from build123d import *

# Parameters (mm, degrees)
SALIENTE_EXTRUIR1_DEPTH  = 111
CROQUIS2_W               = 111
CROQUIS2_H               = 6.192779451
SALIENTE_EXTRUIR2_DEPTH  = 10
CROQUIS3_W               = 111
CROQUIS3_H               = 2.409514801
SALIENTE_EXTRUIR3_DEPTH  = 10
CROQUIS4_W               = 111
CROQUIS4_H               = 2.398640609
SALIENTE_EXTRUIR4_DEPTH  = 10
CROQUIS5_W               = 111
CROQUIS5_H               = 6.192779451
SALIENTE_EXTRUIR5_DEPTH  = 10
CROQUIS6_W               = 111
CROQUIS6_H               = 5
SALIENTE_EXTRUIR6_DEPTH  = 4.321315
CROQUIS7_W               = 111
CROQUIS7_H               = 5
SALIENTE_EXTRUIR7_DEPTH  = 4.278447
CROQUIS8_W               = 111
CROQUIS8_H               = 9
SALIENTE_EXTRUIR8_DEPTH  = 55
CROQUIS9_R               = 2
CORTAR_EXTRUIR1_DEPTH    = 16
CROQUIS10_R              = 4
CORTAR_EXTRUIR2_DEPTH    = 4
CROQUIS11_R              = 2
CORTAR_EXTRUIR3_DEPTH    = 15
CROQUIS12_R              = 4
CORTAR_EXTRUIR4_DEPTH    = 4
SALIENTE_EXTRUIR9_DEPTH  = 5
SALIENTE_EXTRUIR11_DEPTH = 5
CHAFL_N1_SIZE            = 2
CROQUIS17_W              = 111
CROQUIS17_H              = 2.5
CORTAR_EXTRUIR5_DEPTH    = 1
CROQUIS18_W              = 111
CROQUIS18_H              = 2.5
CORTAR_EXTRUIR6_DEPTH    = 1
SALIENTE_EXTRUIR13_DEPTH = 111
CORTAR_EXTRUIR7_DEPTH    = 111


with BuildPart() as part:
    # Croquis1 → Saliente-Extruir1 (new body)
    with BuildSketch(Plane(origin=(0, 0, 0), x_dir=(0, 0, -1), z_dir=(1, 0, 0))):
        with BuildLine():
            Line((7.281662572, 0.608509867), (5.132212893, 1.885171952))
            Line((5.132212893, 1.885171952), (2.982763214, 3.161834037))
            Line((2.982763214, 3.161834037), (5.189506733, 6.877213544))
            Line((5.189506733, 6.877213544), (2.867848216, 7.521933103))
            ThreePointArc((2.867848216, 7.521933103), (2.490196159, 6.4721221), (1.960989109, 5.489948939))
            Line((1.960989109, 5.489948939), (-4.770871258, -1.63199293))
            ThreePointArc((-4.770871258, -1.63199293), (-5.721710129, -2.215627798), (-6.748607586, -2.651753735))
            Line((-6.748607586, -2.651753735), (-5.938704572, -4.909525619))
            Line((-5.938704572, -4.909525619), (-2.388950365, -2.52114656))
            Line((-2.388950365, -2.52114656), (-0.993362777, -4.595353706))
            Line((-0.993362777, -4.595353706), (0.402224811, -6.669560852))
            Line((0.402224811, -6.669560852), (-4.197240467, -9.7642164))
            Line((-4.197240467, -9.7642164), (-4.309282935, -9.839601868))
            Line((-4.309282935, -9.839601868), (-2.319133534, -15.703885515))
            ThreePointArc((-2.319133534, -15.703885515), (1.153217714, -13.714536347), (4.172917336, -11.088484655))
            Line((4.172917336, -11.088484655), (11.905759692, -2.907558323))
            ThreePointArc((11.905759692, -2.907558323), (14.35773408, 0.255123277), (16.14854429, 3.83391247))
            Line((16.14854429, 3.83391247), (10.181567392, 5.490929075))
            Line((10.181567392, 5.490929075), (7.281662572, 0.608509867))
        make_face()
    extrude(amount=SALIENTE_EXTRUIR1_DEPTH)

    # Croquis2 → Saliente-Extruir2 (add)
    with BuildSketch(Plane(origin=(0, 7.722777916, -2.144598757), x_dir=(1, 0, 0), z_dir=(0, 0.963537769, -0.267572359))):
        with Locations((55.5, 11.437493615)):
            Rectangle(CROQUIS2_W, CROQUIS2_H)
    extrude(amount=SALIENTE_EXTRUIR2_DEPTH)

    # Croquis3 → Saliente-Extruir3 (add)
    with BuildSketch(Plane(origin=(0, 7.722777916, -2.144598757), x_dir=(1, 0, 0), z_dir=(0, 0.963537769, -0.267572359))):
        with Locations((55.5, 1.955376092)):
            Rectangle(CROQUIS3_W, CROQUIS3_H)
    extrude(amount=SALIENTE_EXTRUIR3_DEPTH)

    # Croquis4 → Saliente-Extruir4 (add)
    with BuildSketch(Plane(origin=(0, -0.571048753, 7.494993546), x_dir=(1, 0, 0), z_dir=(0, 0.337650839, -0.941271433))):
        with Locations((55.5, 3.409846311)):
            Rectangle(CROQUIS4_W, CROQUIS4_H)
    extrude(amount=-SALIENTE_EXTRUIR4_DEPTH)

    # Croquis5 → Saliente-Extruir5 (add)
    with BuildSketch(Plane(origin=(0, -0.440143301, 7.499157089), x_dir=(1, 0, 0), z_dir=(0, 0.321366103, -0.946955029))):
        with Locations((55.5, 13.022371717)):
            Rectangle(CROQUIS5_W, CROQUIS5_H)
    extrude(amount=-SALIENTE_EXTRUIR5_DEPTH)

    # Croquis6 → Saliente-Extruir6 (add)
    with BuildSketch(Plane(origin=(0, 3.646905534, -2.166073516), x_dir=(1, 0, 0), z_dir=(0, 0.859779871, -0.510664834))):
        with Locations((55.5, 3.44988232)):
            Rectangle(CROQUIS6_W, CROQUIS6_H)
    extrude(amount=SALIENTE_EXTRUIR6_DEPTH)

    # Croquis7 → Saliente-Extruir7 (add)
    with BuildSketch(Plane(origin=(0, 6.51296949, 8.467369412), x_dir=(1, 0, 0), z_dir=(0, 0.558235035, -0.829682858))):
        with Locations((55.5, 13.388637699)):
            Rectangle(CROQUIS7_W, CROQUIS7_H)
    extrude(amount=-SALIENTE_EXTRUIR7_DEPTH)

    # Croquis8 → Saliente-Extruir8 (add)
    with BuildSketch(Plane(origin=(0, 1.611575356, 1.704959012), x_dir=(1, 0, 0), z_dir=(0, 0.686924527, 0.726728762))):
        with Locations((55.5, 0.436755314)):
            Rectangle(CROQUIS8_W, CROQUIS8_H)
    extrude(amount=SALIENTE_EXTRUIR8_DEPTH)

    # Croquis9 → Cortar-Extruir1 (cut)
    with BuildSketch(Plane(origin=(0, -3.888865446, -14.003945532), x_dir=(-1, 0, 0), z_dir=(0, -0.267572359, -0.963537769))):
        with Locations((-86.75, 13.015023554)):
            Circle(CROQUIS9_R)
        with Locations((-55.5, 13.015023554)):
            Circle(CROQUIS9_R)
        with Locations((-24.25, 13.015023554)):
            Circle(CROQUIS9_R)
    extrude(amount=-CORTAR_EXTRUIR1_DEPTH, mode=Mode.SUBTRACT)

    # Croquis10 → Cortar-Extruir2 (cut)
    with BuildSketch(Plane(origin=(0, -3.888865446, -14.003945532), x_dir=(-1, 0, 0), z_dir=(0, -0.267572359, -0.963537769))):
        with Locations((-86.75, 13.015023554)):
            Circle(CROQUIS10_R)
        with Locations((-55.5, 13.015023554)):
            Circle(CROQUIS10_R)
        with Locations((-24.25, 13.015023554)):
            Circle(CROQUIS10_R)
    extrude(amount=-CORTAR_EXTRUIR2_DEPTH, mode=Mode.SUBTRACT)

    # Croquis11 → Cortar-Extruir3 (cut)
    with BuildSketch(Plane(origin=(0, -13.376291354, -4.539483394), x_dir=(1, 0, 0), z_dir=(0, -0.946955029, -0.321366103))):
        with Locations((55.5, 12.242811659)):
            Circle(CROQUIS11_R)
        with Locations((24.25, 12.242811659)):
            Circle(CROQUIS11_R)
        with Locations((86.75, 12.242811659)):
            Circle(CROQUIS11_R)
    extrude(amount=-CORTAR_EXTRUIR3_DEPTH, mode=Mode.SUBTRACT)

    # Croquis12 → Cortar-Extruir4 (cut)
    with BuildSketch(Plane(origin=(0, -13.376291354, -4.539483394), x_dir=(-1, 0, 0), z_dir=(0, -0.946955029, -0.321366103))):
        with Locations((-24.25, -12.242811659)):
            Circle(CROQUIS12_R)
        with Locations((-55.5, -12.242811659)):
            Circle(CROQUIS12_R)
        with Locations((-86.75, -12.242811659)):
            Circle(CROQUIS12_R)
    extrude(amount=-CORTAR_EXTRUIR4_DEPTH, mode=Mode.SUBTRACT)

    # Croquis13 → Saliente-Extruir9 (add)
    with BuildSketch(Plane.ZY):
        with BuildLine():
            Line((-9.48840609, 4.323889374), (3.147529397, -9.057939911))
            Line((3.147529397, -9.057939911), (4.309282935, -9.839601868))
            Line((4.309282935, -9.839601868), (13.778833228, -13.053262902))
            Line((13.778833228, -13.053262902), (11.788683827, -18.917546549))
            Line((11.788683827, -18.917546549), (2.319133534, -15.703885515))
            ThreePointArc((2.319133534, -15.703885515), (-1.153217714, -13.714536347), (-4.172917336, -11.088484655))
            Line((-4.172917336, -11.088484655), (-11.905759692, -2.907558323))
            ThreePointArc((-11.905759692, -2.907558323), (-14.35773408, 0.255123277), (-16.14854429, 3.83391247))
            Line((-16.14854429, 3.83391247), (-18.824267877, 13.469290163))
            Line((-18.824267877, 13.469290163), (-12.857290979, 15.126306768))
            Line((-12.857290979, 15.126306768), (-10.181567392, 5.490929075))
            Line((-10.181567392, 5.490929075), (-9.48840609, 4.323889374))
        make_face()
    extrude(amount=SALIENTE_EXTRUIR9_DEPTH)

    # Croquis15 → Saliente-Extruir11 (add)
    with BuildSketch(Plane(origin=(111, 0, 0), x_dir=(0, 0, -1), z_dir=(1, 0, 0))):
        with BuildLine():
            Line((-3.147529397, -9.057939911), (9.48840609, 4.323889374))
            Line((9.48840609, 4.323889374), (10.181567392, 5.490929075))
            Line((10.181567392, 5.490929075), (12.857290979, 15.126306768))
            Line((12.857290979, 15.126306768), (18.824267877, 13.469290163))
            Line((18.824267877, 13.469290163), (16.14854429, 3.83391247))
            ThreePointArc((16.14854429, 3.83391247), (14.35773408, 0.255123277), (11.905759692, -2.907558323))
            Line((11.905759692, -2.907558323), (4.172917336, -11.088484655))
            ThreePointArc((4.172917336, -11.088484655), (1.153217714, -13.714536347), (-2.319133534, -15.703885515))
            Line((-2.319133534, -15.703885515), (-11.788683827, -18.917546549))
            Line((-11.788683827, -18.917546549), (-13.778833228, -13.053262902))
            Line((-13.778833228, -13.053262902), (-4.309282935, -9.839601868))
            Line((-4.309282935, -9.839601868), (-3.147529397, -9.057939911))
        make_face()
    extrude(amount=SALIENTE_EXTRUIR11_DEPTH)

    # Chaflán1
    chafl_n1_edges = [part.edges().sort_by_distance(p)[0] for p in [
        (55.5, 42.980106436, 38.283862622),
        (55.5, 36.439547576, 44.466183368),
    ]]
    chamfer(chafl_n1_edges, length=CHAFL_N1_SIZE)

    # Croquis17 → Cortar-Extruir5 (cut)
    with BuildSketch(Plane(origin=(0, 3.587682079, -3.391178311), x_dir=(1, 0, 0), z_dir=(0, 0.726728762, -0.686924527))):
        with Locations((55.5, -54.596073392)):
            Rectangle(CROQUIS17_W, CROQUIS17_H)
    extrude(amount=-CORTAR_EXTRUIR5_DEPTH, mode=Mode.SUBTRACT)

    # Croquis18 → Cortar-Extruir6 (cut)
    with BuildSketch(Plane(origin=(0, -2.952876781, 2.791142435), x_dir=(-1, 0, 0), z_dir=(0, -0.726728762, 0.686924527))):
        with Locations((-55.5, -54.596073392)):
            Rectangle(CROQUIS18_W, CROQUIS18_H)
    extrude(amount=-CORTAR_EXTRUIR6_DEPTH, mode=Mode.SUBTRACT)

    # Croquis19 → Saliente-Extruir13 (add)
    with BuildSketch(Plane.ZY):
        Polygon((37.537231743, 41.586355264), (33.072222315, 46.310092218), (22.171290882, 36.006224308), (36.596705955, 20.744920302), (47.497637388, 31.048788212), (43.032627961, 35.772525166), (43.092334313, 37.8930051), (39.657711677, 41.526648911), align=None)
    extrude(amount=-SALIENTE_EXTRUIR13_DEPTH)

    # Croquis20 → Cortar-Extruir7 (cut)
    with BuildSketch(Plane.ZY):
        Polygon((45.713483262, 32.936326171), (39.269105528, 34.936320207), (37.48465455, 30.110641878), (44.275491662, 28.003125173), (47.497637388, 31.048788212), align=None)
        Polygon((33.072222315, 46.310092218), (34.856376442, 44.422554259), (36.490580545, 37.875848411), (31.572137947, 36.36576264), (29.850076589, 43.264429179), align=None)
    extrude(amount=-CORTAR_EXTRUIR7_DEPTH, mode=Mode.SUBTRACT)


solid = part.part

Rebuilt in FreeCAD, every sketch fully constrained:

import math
import FreeCAD as App
import Part
import Sketcher

V = App.Vector
Q = App.Units.Quantity


def edges_at(feature, points):
    """Names of the edges that pass closest to the given points."""
    edges = feature.Shape.Edges
    near = lambda p: min(range(len(edges)), key=lambda i: edges[i].distToShape(Part.Vertex(*p))[0])
    return sorted({f"Edge{near(p) + 1}" for p in points})

doc = App.newDocument("Part")
params = doc.addObject("Spreadsheet::Sheet", "Params")
for row, (alias, value) in enumerate([
    ("sketch1_radius", "7.5 mm"),
    ("sketch1_radius2", "20.5 mm"),
    ("sketch1_length", "5 mm"),
    ("sketch1_length2", "9.8 mm"),
    ("pad1_length", "111 mm"),
    ("sketch2_width", "111 mm"),
    ("pad2_length", "10 mm"),
    ("sketch3_width", "111 mm"),
    ("pad3_length", "10 mm"),
    ("sketch4_width", "111 mm"),
    ("pad4_length", "10 mm"),
    ("sketch5_width", "111 mm"),
    ("pad5_length", "10 mm"),
    ("sketch6_width", "111 mm"),
    ("sketch6_height", "5 mm"),
    ("pad6_length", "4.321315 mm"),
    ("sketch7_width", "111 mm"),
    ("sketch7_height", "5 mm"),
    ("pad7_length", "4.278447 mm"),
    ("sketch8_width", "111 mm"),
    ("sketch8_height", "9 mm"),
    ("pad8_length", "55 mm"),
    ("sketch9_diameter", "4 mm"),
    ("pocket1_length", "16 mm"),
    ("sketch10_diameter", "8 mm"),
    ("pocket2_length", "4 mm"),
    ("sketch11_diameter", "4 mm"),
    ("pocket3_length", "15 mm"),
    ("sketch12_diameter", "8 mm"),
    ("pocket4_length", "4 mm"),
    ("sketch13_radius", "20.5 mm"),
    ("sketch13_length", "10 mm"),
    ("pad9_length", "5 mm"),
    ("sketch14_radius", "20.5 mm"),
    ("sketch14_length", "10 mm"),
    ("pad10_length", "5 mm"),
    ("chamfer_size", "2 mm"),
    ("sketch15_width", "111 mm"),
    ("sketch15_height", "2.5 mm"),
    ("pocket5_length", "1 mm"),
    ("sketch16_width", "111 mm"),
    ("sketch16_height", "2.5 mm"),
    ("pocket6_length", "1 mm"),
    ("sketch17_length", "15 mm"),
    ("sketch17_length2", "21 mm"),
    ("sketch17_length3", "5 mm"),
    ("sketch17_length4", "6.5 mm"),
    ("pad11_length", "111 mm"),
    ("pocket7_length", "111 mm"),
], start=1):
    params.set(f"A{row}", alias)
    params.set(f"B{row}", "=" + value)
    params.setAlias(f"B{row}", alias)

body = doc.addObject("PartDesign::Body", "Body")

sketch1 = body.newObject("Sketcher::SketchObject", "Sketch")
sketch1.AttachmentSupport = (doc.getObject("YZ_Plane"), [""])
sketch1.MapMode = "FlatFace"
sketch1.addGeometry([
    Part.LineSegment(V(0.60851, -7.281663, 0), V(3.161834, -2.982763, 0)),
    Part.LineSegment(V(3.161834, -2.982763, 0), V(6.877214, -5.189507, 0)),
    Part.LineSegment(V(6.877214, -5.189507, 0), V(7.521933, -2.867848, 0)),
    Part.ArcOfCircle(Part.Circle(V(9.528726, 4.358685, 0), V(0, 0, 1), 7.5), math.radians(-122.581829), math.radians(-105.519859)),
    Part.LineSegment(V(5.489949, -1.960989, 0), V(-1.631993, 4.770871, 0)),
    Part.ArcOfCircle(Part.Circle(V(4.450409, 9.158853, 0), V(0, 0, 1), 7.5), math.radians(-161.254439), math.radians(-144.192469)),
    Part.LineSegment(V(-2.651754, 6.748608, 0), V(-4.909526, 5.938705, 0)),
    Part.LineSegment(V(-4.909526, 5.938705, 0), V(-2.521147, 2.38895, 0)),
    Part.LineSegment(V(-2.521147, 2.38895, 0), V(-6.669561, -0.402225, 0)),
    Part.LineSegment(V(-6.669561, -0.402225, 0), V(-9.764216, 4.19724, 0)),
    Part.LineSegment(V(-9.764216, 4.19724, 0), V(-9.839602, 4.309283, 0)),
    Part.LineSegment(V(-9.839602, 4.309283, 0), V(-15.703886, 2.319134, 0)),
    Part.ArcOfCircle(Part.Circle(V(2.993468, 10.725022, 0), V(0, 0, 1), 20.5), math.radians(-155.792442), math.radians(-133.387149)),
    Part.LineSegment(V(-11.088485, -4.172917, 0), V(-2.907558, -11.90576, 0)),
    Part.ArcOfCircle(Part.Circle(V(11.174394, 2.99218, 0), V(0, 0, 1), 20.5), math.radians(-133.387149), math.radians(-110.981856)),
    Part.LineSegment(V(3.833912, -16.148544, 0), V(5.490929, -10.181567, 0)),
    Part.LineSegment(V(5.490929, -10.181567, 0), V(0.60851, -7.281663, 0)),
], False)
sketch1.addConstraint([
    Sketcher.Constraint("Coincident", 0, 2, 1, 1),
    Sketcher.Constraint("Coincident", 1, 2, 2, 1),
    Sketcher.Constraint("Coincident", 2, 2, 3, 2),
    Sketcher.Constraint("Coincident", 3, 1, 4, 1),
    Sketcher.Constraint("Coincident", 4, 2, 5, 2),
    Sketcher.Constraint("Coincident", 5, 1, 6, 1),
    Sketcher.Constraint("Coincident", 6, 2, 7, 1),
    Sketcher.Constraint("Coincident", 7, 2, 8, 1),
    Sketcher.Constraint("Coincident", 8, 2, 9, 1),
    Sketcher.Constraint("Coincident", 9, 2, 10, 1),
    Sketcher.Constraint("Coincident", 10, 2, 11, 1),
    Sketcher.Constraint("Coincident", 11, 2, 12, 1),
    Sketcher.Constraint("Tangent", 12, 2, 13, 1),
    Sketcher.Constraint("Tangent", 13, 2, 14, 1),
    Sketcher.Constraint("Coincident", 14, 2, 15, 1),
    Sketcher.Constraint("Coincident", 15, 2, 16, 1),
    Sketcher.Constraint("Coincident", 16, 2, 0, 1),
    Sketcher.Constraint("Equal", 3, 5),
    Sketcher.Constraint("Equal", 12, 14),
    Sketcher.Constraint("Perpendicular", 0, 1),
    Sketcher.Constraint("Perpendicular", 7, 8),
    Sketcher.Constraint("Perpendicular", 8, 9),
    Sketcher.Constraint("Parallel", 9, 10),
    Sketcher.Constraint("Parallel", 4, 13),
    Sketcher.Constraint("Parallel", 2, 15),
    Sketcher.Constraint("Parallel", 1, 16),
    Sketcher.Constraint("Equal", 0, 8),
    Sketcher.Constraint("Equal", 11, 15),
    Sketcher.Constraint("Radius", 3, Q("7.5 mm")),
    Sketcher.Constraint("Radius", 12, Q("20.5 mm")),
    Sketcher.Constraint("Distance", 0, Q("5 mm")),
    Sketcher.Constraint("Distance", 4, Q("9.8 mm")),
    Sketcher.Constraint("DistanceX", 10, 2, -1, 1, Q("9.839602 mm")),
    Sketcher.Constraint("DistanceX", 0, 2, 2, 2, Q("4.360099 mm")),
    Sketcher.Constraint("DistanceY", 2, 2, 5, 3, Q("12.026702 mm")),
    Sketcher.Constraint("DistanceX", 4, 2, 5, 3, Q("6.082402 mm")),
    Sketcher.Constraint("DistanceX", 11, 2, 12, 2, Q("4.615401 mm")),
    Sketcher.Constraint("DistanceY", 12, 2, 10, 2, Q("8.4822 mm")),
    Sketcher.Constraint("DistanceX", 14, 2, 1, 2, Q("3.043301 mm")),
    Sketcher.Constraint("DistanceY", 16, 2, 0, 2, Q("4.298899 mm")),
    Sketcher.Constraint("Distance", 6, Q("2.398641 mm")),
    Sketcher.Constraint("Distance", 11, Q("6.192779 mm")),
    Sketcher.Constraint("DistanceX", -1, 1, 5, 3, Q("4.450409 mm")),
    Sketcher.Constraint("DistanceX", -1, 1, 12, 3, Q("2.993468 mm")),
    Sketcher.Constraint("DistanceY", -1, 1, 14, 3, Q("2.99218 mm")),
    Sketcher.Constraint("DistanceY", 2, 2, -1, 1, Q("2.867848 mm")),
    Sketcher.Constraint("DistanceY", -1, 1, 7, 2, Q("2.38895 mm")),
    Sketcher.Constraint("DistanceX", 8, 2, -1, 1, Q("6.669561 mm")),
    Sketcher.Constraint("DistanceY", -1, 1, 9, 2, Q("4.19724 mm")),
    Sketcher.Constraint("DistanceX", 13, 2, -1, 1, Q("2.907558 mm")),
    Sketcher.Constraint("DistanceX", -1, 1, 15, 2, Q("5.490929 mm")),
    Sketcher.Constraint("DistanceX", -1, 1, 16, 2, Q("0.60851 mm")),
    Sketcher.Constraint("DistanceX", 5, 1, 4, 2, Q("1.019761 mm")),
])
sketch1.setExpression("Constraints[28]", "Params.sketch1_radius")
sketch1.setExpression("Constraints[29]", "Params.sketch1_radius2")
sketch1.setExpression("Constraints[30]", "Params.sketch1_length")
sketch1.setExpression("Constraints[31]", "Params.sketch1_length2")
pad1 = body.newObject("PartDesign::Pad", "Pad")
pad1.Profile = sketch1
pad1.setExpression("Length", "Params.pad1_length")

sketch2 = body.newObject("Sketcher::SketchObject", "Sketch001")
sketch2.Placement = App.Placement(V(0, 7.722778, -2.144599), App.Rotation(V(1, 0, 0), V(0, -0.267572359, -0.963537769), V(0, 0.963537769, -0.267572359), "ZXY"))
sketch2.addGeometry([
    Part.LineSegment(V(0, 14.533883, 0), V(0, 8.341104, 0)),
    Part.LineSegment(V(0, 8.341104, 0), V(111, 8.341104, 0)),
    Part.LineSegment(V(111, 8.341104, 0), V(111, 14.533883, 0)),
    Part.LineSegment(V(111, 14.533883, 0), V(0, 14.533883, 0)),
], False)
sketch2.addConstraint([
    Sketcher.Constraint("Coincident", 0, 2, 1, 1),
    Sketcher.Constraint("Coincident", 1, 2, 2, 1),
    Sketcher.Constraint("Coincident", 2, 2, 3, 1),
    Sketcher.Constraint("Coincident", 3, 2, 0, 1),
    Sketcher.Constraint("Vertical", 0),
    Sketcher.Constraint("Horizontal", 1),
    Sketcher.Constraint("Vertical", 2),
    Sketcher.Constraint("Horizontal", 3),
    Sketcher.Constraint("PointOnObject", 0, 2, -2),
    Sketcher.Constraint("DistanceX", 1, 1, 1, 2, Q("111 mm")),
    Sketcher.Constraint("DistanceY", 0, 2, 0, 1, Q("6.192779 mm")),
    Sketcher.Constraint("DistanceY", -1, 1, 0, 2, Q("8.341104 mm")),
])
sketch2.setExpression("Constraints[9]", "Params.sketch2_width")
pad2 = body.newObject("PartDesign::Pad", "Pad001")
pad2.Profile = sketch2
pad2.setExpression("Length", "Params.pad2_length")

sketch3 = body.newObject("Sketcher::SketchObject", "Sketch002")
sketch3.Placement = App.Placement(V(0, 7.722778, -2.144599), App.Rotation(V(1, 0, 0), V(0, -0.267572359, -0.963537769), V(0, 0.963537769, -0.267572359), "ZXY"))
sketch3.addGeometry([
    Part.LineSegment(V(0, 3.160133, 0), V(0, 0.750619, 0)),
    Part.LineSegment(V(0, 0.750619, 0), V(111, 0.750619, 0)),
    Part.LineSegment(V(111, 0.750619, 0), V(111, 3.160133, 0)),
    Part.LineSegment(V(111, 3.160133, 0), V(0, 3.160133, 0)),
], False)
sketch3.addConstraint([
    Sketcher.Constraint("Coincident", 0, 2, 1, 1),
    Sketcher.Constraint("Coincident", 1, 2, 2, 1),
    Sketcher.Constraint("Coincident", 2, 2, 3, 1),
    Sketcher.Constraint("Coincident", 3, 2, 0, 1),
    Sketcher.Constraint("Vertical", 0),
    Sketcher.Constraint("Horizontal", 1),
    Sketcher.Constraint("Vertical", 2),
    Sketcher.Constraint("Horizontal", 3),
    Sketcher.Constraint("PointOnObject", 0, 2, -2),
    Sketcher.Constraint("DistanceX", 1, 1, 1, 2, Q("111 mm")),
    Sketcher.Constraint("DistanceY", 0, 2, 0, 1, Q("2.409515 mm")),
    Sketcher.Constraint("DistanceY", -1, 1, 0, 2, Q("0.750619 mm")),
])
sketch3.setExpression("Constraints[9]", "Params.sketch3_width")
pad3 = body.newObject("PartDesign::Pad", "Pad002")
pad3.Profile = sketch3
pad3.setExpression("Length", "Params.pad3_length")

sketch4 = body.newObject("Sketcher::SketchObject", "Sketch003")
sketch4.Placement = App.Placement(V(0, -0.571049, 7.494994), App.Rotation(V(1, 0, 0), V(0, -0.941271433, -0.337650839), V(0, 0.337650839, -0.941271433), "ZXY"))
sketch4.addGeometry([
    Part.LineSegment(V(0, 4.609167, 0), V(0, 2.210526, 0)),
    Part.LineSegment(V(0, 2.210526, 0), V(111, 2.210526, 0)),
    Part.LineSegment(V(111, 2.210526, 0), V(111, 4.609167, 0)),
    Part.LineSegment(V(111, 4.609167, 0), V(0, 4.609167, 0)),
], False)
sketch4.addConstraint([
    Sketcher.Constraint("Coincident", 0, 2, 1, 1),
    Sketcher.Constraint("Coincident", 1, 2, 2, 1),
    Sketcher.Constraint("Coincident", 2, 2, 3, 1),
    Sketcher.Constraint("Coincident", 3, 2, 0, 1),
    Sketcher.Constraint("Vertical", 0),
    Sketcher.Constraint("Horizontal", 1),
    Sketcher.Constraint("Vertical", 2),
    Sketcher.Constraint("Horizontal", 3),
    Sketcher.Constraint("PointOnObject", 0, 2, -2),
    Sketcher.Constraint("DistanceX", 1, 1, 1, 2, Q("111 mm")),
    Sketcher.Constraint("DistanceY", 0, 2, 0, 1, Q("2.398641 mm")),
    Sketcher.Constraint("DistanceY", -1, 1, 0, 2, Q("2.210526 mm")),
])
sketch4.setExpression("Constraints[9]", "Params.sketch4_width")
pad4 = body.newObject("PartDesign::Pad", "Pad003")
pad4.Profile = sketch4
pad4.setExpression("Length", "Params.pad4_length")
pad4.Reversed = True

sketch5 = body.newObject("Sketcher::SketchObject", "Sketch004")
sketch5.Placement = App.Placement(V(0, -0.440143, 7.499157), App.Rotation(V(1, 0, 0), V(0, -0.946955029, -0.321366103), V(0, 0.321366103, -0.946955029), "ZXY"))
sketch5.addGeometry([
    Part.LineSegment(V(0, 16.118761, 0), V(0, 9.925982, 0)),
    Part.LineSegment(V(0, 9.925982, 0), V(111, 9.925982, 0)),
    Part.LineSegment(V(111, 9.925982, 0), V(111, 16.118761, 0)),
    Part.LineSegment(V(111, 16.118761, 0), V(0, 16.118761, 0)),
], False)
sketch5.addConstraint([
    Sketcher.Constraint("Coincident", 0, 2, 1, 1),
    Sketcher.Constraint("Coincident", 1, 2, 2, 1),
    Sketcher.Constraint("Coincident", 2, 2, 3, 1),
    Sketcher.Constraint("Coincident", 3, 2, 0, 1),
    Sketcher.Constraint("Vertical", 0),
    Sketcher.Constraint("Horizontal", 1),
    Sketcher.Constraint("Vertical", 2),
    Sketcher.Constraint("Horizontal", 3),
    Sketcher.Constraint("PointOnObject", 0, 2, -2),
    Sketcher.Constraint("DistanceX", 1, 1, 1, 2, Q("111 mm")),
    Sketcher.Constraint("DistanceY", 0, 2, 0, 1, Q("6.192779 mm")),
    Sketcher.Constraint("DistanceY", -1, 1, 0, 2, Q("9.925982 mm")),
])
sketch5.setExpression("Constraints[9]", "Params.sketch5_width")
pad5 = body.newObject("PartDesign::Pad", "Pad004")
pad5.Profile = sketch5
pad5.setExpression("Length", "Params.pad5_length")
pad5.Reversed = True

sketch6 = body.newObject("Sketcher::SketchObject", "Sketch005")
sketch6.Placement = App.Placement(V(0, 3.646906, -2.166074), App.Rotation(V(1, 0, 0), V(0, -0.510664834, -0.859779871), V(0, 0.859779871, -0.510664834), "ZXY"))
sketch6.addGeometry([
    Part.LineSegment(V(0, 5.949882, 0), V(0, 0.949882, 0)),
    Part.LineSegment(V(0, 0.949882, 0), V(111, 0.949882, 0)),
    Part.LineSegment(V(111, 0.949882, 0), V(111, 5.949882, 0)),
    Part.LineSegment(V(111, 5.949882, 0), V(0, 5.949882, 0)),
], False)
sketch6.addConstraint([
    Sketcher.Constraint("Coincident", 0, 2, 1, 1),
    Sketcher.Constraint("Coincident", 1, 2, 2, 1),
    Sketcher.Constraint("Coincident", 2, 2, 3, 1),
    Sketcher.Constraint("Coincident", 3, 2, 0, 1),
    Sketcher.Constraint("Vertical", 0),
    Sketcher.Constraint("Horizontal", 1),
    Sketcher.Constraint("Vertical", 2),
    Sketcher.Constraint("Horizontal", 3),
    Sketcher.Constraint("PointOnObject", 0, 2, -2),
    Sketcher.Constraint("DistanceX", 1, 1, 1, 2, Q("111 mm")),
    Sketcher.Constraint("DistanceY", 0, 2, 0, 1, Q("5 mm")),
    Sketcher.Constraint("DistanceY", -1, 1, 0, 2, Q("0.949882 mm")),
])
sketch6.setExpression("Constraints[9]", "Params.sketch6_width")
sketch6.setExpression("Constraints[10]", "Params.sketch6_height")
pad6 = body.newObject("PartDesign::Pad", "Pad005")
pad6.Profile = sketch6
pad6.setExpression("Length", "Params.pad6_length")

sketch7 = body.newObject("Sketcher::SketchObject", "Sketch006")
sketch7.Placement = App.Placement(V(0, 6.512969, 8.467369), App.Rotation(V(1, 0, 0), V(0, -0.829682858, -0.558235035), V(0, 0.558235035, -0.829682858), "ZXY"))
sketch7.addGeometry([
    Part.LineSegment(V(0, 15.888638, 0), V(0, 10.888638, 0)),
    Part.LineSegment(V(0, 10.888638, 0), V(111, 10.888638, 0)),
    Part.LineSegment(V(111, 10.888638, 0), V(111, 15.888638, 0)),
    Part.LineSegment(V(111, 15.888638, 0), V(0, 15.888638, 0)),
], False)
sketch7.addConstraint([
    Sketcher.Constraint("Coincident", 0, 2, 1, 1),
    Sketcher.Constraint("Coincident", 1, 2, 2, 1),
    Sketcher.Constraint("Coincident", 2, 2, 3, 1),
    Sketcher.Constraint("Coincident", 3, 2, 0, 1),
    Sketcher.Constraint("Vertical", 0),
    Sketcher.Constraint("Horizontal", 1),
    Sketcher.Constraint("Vertical", 2),
    Sketcher.Constraint("Horizontal", 3),
    Sketcher.Constraint("PointOnObject", 0, 2, -2),
    Sketcher.Constraint("DistanceX", 1, 1, 1, 2, Q("111 mm")),
    Sketcher.Constraint("DistanceY", 0, 2, 0, 1, Q("5 mm")),
    Sketcher.Constraint("DistanceY", -1, 1, 0, 2, Q("10.888638 mm")),
])
sketch7.setExpression("Constraints[9]", "Params.sketch7_width")
sketch7.setExpression("Constraints[10]", "Params.sketch7_height")
pad7 = body.newObject("PartDesign::Pad", "Pad006")
pad7.Profile = sketch7
pad7.setExpression("Length", "Params.pad7_length")
pad7.Reversed = True

sketch8 = body.newObject("Sketcher::SketchObject", "Sketch007")
sketch8.Placement = App.Placement(V(0, 1.611575, 1.704959), App.Rotation(V(1, 0, 0), V(0, 0.726728762, -0.686924527), V(0, 0.686924527, 0.726728762), "ZXY"))
sketch8.addGeometry([
    Part.LineSegment(V(0, 4.936755, 0), V(0, -4.063245, 0)),
    Part.LineSegment(V(0, -4.063245, 0), V(111, -4.063245, 0)),
    Part.LineSegment(V(111, -4.063245, 0), V(111, 4.936755, 0)),
    Part.LineSegment(V(111, 4.936755, 0), V(0, 4.936755, 0)),
], False)
sketch8.addConstraint([
    Sketcher.Constraint("Coincident", 0, 2, 1, 1),
    Sketcher.Constraint("Coincident", 1, 2, 2, 1),
    Sketcher.Constraint("Coincident", 2, 2, 3, 1),
    Sketcher.Constraint("Coincident", 3, 2, 0, 1),
    Sketcher.Constraint("Vertical", 0),
    Sketcher.Constraint("Horizontal", 1),
    Sketcher.Constraint("Vertical", 2),
    Sketcher.Constraint("Horizontal", 3),
    Sketcher.Constraint("PointOnObject", 0, 2, -2),
    Sketcher.Constraint("DistanceX", 1, 1, 1, 2, Q("111 mm")),
    Sketcher.Constraint("DistanceY", 0, 2, 0, 1, Q("9 mm")),
    Sketcher.Constraint("DistanceY", 0, 2, -1, 1, Q("4.063245 mm")),
])
sketch8.setExpression("Constraints[9]", "Params.sketch8_width")
sketch8.setExpression("Constraints[10]", "Params.sketch8_height")
pad8 = body.newObject("PartDesign::Pad", "Pad007")
pad8.Profile = sketch8
pad8.setExpression("Length", "Params.pad8_length")

sketch9 = body.newObject("Sketcher::SketchObject", "Sketch008")
sketch9.Placement = App.Placement(V(0, -3.888865, -14.003946), App.Rotation(V(-1, 0, 0), V(0, 0.963537769, -0.267572359), V(0, -0.267572359, -0.963537769), "ZXY"))
sketch9.addGeometry([
    Part.Circle(V(-86.75, 13.015024, 0), V(0, 0, 1), 2),
    Part.Circle(V(-55.5, 13.015024, 0), V(0, 0, 1), 2),
    Part.Circle(V(-24.25, 13.015024, 0), V(0, 0, 1), 2),
], False)
sketch9.addConstraint([
    Sketcher.Constraint("Equal", 0, 1),
    Sketcher.Constraint("Equal", 1, 2),
    Sketcher.Constraint("Horizontal", 0, 3, 1, 3),
    Sketcher.Constraint("Horizontal", 1, 3, 2, 3),
    Sketcher.Constraint("Diameter", 0, Q("4 mm")),
    Sketcher.Constraint("DistanceX", 1, 3, -1, 1, Q("55.5 mm")),
    Sketcher.Constraint("DistanceX", 0, 3, 2, 3, Q("62.5 mm")),
    Sketcher.Constraint("DistanceX", 0, 3, -1, 1, Q("86.75 mm")),
    Sketcher.Constraint("DistanceY", -1, 1, 0, 3, Q("13.015024 mm")),
])
sketch9.setExpression("Constraints[4]", "Params.sketch9_diameter")
pocket1 = body.newObject("PartDesign::Pocket", "Pocket")
pocket1.Profile = sketch9
pocket1.setExpression("Length", "Params.pocket1_length")

sketch10 = body.newObject("Sketcher::SketchObject", "Sketch009")
sketch10.Placement = App.Placement(V(0, -3.888865, -14.003946), App.Rotation(V(-1, 0, 0), V(0, 0.963537769, -0.267572359), V(0, -0.267572359, -0.963537769), "ZXY"))
sketch10.addGeometry([
    Part.Circle(V(-86.75, 13.015024, 0), V(0, 0, 1), 4),
    Part.Circle(V(-55.5, 13.015024, 0), V(0, 0, 1), 4),
    Part.Circle(V(-24.25, 13.015024, 0), V(0, 0, 1), 4),
], False)
sketch10.addConstraint([
    Sketcher.Constraint("Equal", 0, 1),
    Sketcher.Constraint("Equal", 1, 2),
    Sketcher.Constraint("Horizontal", 0, 3, 1, 3),
    Sketcher.Constraint("Horizontal", 1, 3, 2, 3),
    Sketcher.Constraint("Diameter", 0, Q("8 mm")),
    Sketcher.Constraint("DistanceX", 1, 3, -1, 1, Q("55.5 mm")),
    Sketcher.Constraint("DistanceX", 0, 3, 2, 3, Q("62.5 mm")),
    Sketcher.Constraint("DistanceX", 0, 3, -1, 1, Q("86.75 mm")),
    Sketcher.Constraint("DistanceY", -1, 1, 0, 3, Q("13.015024 mm")),
])
sketch10.setExpression("Constraints[4]", "Params.sketch10_diameter")
pocket2 = body.newObject("PartDesign::Pocket", "Pocket001")
pocket2.Profile = sketch10
pocket2.setExpression("Length", "Params.pocket2_length")

sketch11 = body.newObject("Sketcher::SketchObject", "Sketch010")
sketch11.Placement = App.Placement(V(0, -13.376291, -4.539483), App.Rotation(V(1, 0, 0), V(0, -0.321366103, 0.946955029), V(0, -0.946955029, -0.321366103), "ZXY"))
sketch11.addGeometry([
    Part.Circle(V(55.5, 12.242812, 0), V(0, 0, 1), 2),
    Part.Circle(V(24.25, 12.242812, 0), V(0, 0, 1), 2),
    Part.Circle(V(86.75, 12.242812, 0), V(0, 0, 1), 2),
], False)
sketch11.addConstraint([
    Sketcher.Constraint("Equal", 0, 1),
    Sketcher.Constraint("Equal", 1, 2),
    Sketcher.Constraint("Horizontal", 0, 3, 1, 3),
    Sketcher.Constraint("Horizontal", 1, 3, 2, 3),
    Sketcher.Constraint("Diameter", 0, Q("4 mm")),
    Sketcher.Constraint("DistanceX", -1, 1, 0, 3, Q("55.5 mm")),
    Sketcher.Constraint("DistanceX", 1, 3, 2, 3, Q("62.5 mm")),
    Sketcher.Constraint("DistanceX", -1, 1, 1, 3, Q("24.25 mm")),
    Sketcher.Constraint("DistanceY", -1, 1, 0, 3, Q("12.242812 mm")),
])
sketch11.setExpression("Constraints[4]", "Params.sketch11_diameter")
pocket3 = body.newObject("PartDesign::Pocket", "Pocket002")
pocket3.Profile = sketch11
pocket3.setExpression("Length", "Params.pocket3_length")

sketch12 = body.newObject("Sketcher::SketchObject", "Sketch011")
sketch12.Placement = App.Placement(V(0, -13.376291, -4.539483), App.Rotation(V(-1, 0, 0), V(0, 0.321366103, -0.946955029), V(0, -0.946955029, -0.321366103), "ZXY"))
sketch12.addGeometry([
    Part.Circle(V(-24.25, -12.242812, 0), V(0, 0, 1), 4),
    Part.Circle(V(-55.5, -12.242812, 0), V(0, 0, 1), 4),
    Part.Circle(V(-86.75, -12.242812, 0), V(0, 0, 1), 4),
], False)
sketch12.addConstraint([
    Sketcher.Constraint("Equal", 0, 1),
    Sketcher.Constraint("Equal", 1, 2),
    Sketcher.Constraint("Horizontal", 0, 3, 1, 3),
    Sketcher.Constraint("Horizontal", 1, 3, 2, 3),
    Sketcher.Constraint("Diameter", 0, Q("8 mm")),
    Sketcher.Constraint("DistanceX", 1, 3, -1, 1, Q("55.5 mm")),
    Sketcher.Constraint("DistanceX", 2, 3, 0, 3, Q("62.5 mm")),
    Sketcher.Constraint("DistanceX", 0, 3, -1, 1, Q("24.25 mm")),
    Sketcher.Constraint("DistanceY", 0, 3, -1, 1, Q("12.242812 mm")),
])
sketch12.setExpression("Constraints[4]", "Params.sketch12_diameter")
pocket4 = body.newObject("PartDesign::Pocket", "Pocket003")
pocket4.Profile = sketch12
pocket4.setExpression("Length", "Params.pocket4_length")

sketch13 = body.newObject("Sketcher::SketchObject", "Sketch012")
sketch13.AttachmentSupport = (doc.getObject("YZ_Plane"), [""])
sketch13.MapMode = "FlatFace"
sketch13.addGeometry([
    Part.LineSegment(V(-9.05794, 3.147529, 0), V(4.323889, -9.488406, 0)),
    Part.LineSegment(V(4.323889, -9.488406, 0), V(5.490929, -10.181567, 0)),
    Part.LineSegment(V(5.490929, -10.181567, 0), V(15.126307, -12.857291, 0)),
    Part.LineSegment(V(15.126307, -12.857291, 0), V(13.46929, -18.824268, 0)),
    Part.LineSegment(V(13.46929, -18.824268, 0), V(3.833912, -16.148544, 0)),
    Part.ArcOfCircle(Part.Circle(V(11.174394, 2.99218, 0), V(0, 0, 1), 20.5), math.radians(-133.387149), math.radians(-110.981856)),
    Part.LineSegment(V(-2.907558, -11.90576, 0), V(-11.088485, -4.172917, 0)),
    Part.ArcOfCircle(Part.Circle(V(2.993468, 10.725022, 0), V(0, 0, 1), 20.5), math.radians(-155.792442), math.radians(-133.387149)),
    Part.LineSegment(V(-15.703886, 2.319134, 0), V(-18.917547, 11.788684, 0)),
    Part.LineSegment(V(-18.917547, 11.788684, 0), V(-13.053263, 13.778833, 0)),
    Part.LineSegment(V(-13.053263, 13.778833, 0), V(-9.839602, 4.309283, 0)),
    Part.LineSegment(V(-9.839602, 4.309283, 0), V(-9.05794, 3.147529, 0)),
], False)
sketch13.addConstraint([
    Sketcher.Constraint("Coincident", 0, 2, 1, 1),
    Sketcher.Constraint("Coincident", 1, 2, 2, 1),
    Sketcher.Constraint("Coincident", 2, 2, 3, 1),
    Sketcher.Constraint("Coincident", 3, 2, 4, 1),
    Sketcher.Constraint("Coincident", 4, 2, 5, 2),
    Sketcher.Constraint("Tangent", 5, 1, 6, 1),
    Sketcher.Constraint("Tangent", 6, 2, 7, 2),
    Sketcher.Constraint("Coincident", 7, 1, 8, 1),
    Sketcher.Constraint("Coincident", 8, 2, 9, 1),
    Sketcher.Constraint("Coincident", 9, 2, 10, 1),
    Sketcher.Constraint("Coincident", 10, 2, 11, 1),
    Sketcher.Constraint("Coincident", 11, 2, 0, 1),
    Sketcher.Constraint("Equal", 5, 7),
    Sketcher.Constraint("Perpendicular", 2, 3),
    Sketcher.Constraint("Perpendicular", 3, 4),
    Sketcher.Constraint("Perpendicular", 8, 9),
    Sketcher.Constraint("Perpendicular", 9, 10),
    Sketcher.Constraint("Equal", 2, 4),
    Sketcher.Constraint("Equal", 4, 8),
    Sketcher.Constraint("Equal", 3, 9),
    Sketcher.Constraint("Equal", 8, 10),
    Sketcher.Constraint("Radius", 5, Q("20.5 mm")),
    Sketcher.Constraint("Distance", 2, Q("10 mm")),
    Sketcher.Constraint("DistanceX", 10, 2, -1, 1, Q("9.839602 mm")),
    Sketcher.Constraint("DistanceY", 3, 2, 1, 2, Q("8.6427 mm")),
    Sketcher.Constraint("DistanceX", 0, 2, 3, 2, Q("9.145401 mm")),
    Sketcher.Constraint("DistanceX", 7, 1, 6, 2, Q("4.615401 mm")),
    Sketcher.Constraint("DistanceY", 1, 2, 7, 1, Q("12.500701 mm")),
    Sketcher.Constraint("DistanceY", 6, 2, 8, 2, Q("15.961601 mm")),
    Sketcher.Constraint("DistanceY", 7, 1, 9, 2, Q("11.4597 mm")),
    Sketcher.Constraint("DistanceY", 6, 2, 10, 2, Q("8.4822 mm")),
    Sketcher.Constraint("Distance", 1, Q("1.35737 mm")),
    Sketcher.Constraint("Distance", 11, Q("1.400238 mm")),
    Sketcher.Constraint("DistanceY", -1, 1, 5, 3, Q("2.99218 mm")),
    Sketcher.Constraint("DistanceX", -1, 1, 0, 2, Q("4.323889 mm")),
    Sketcher.Constraint("DistanceX", 11, 2, -1, 1, Q("9.05794 mm")),
])
sketch13.setExpression("Constraints[21]", "Params.sketch13_radius")
sketch13.setExpression("Constraints[22]", "Params.sketch13_length")
pad9 = body.newObject("PartDesign::Pad", "Pad008")
pad9.Profile = sketch13
pad9.setExpression("Length", "Params.pad9_length")
pad9.Reversed = True

sketch14 = body.newObject("Sketcher::SketchObject", "Sketch013")
sketch14.AttachmentSupport = (doc.getObject("YZ_Plane"), [""])
sketch14.MapMode = "FlatFace"
sketch14.AttachmentOffset = App.Placement(V(0, 0, 111), App.Rotation())
sketch14.addGeometry([
    Part.LineSegment(V(4.323889, -9.488406, 0), V(-9.05794, 3.147529, 0)),
    Part.LineSegment(V(-9.05794, 3.147529, 0), V(-9.839602, 4.309283, 0)),
    Part.LineSegment(V(-9.839602, 4.309283, 0), V(-13.053263, 13.778833, 0)),
    Part.LineSegment(V(-13.053263, 13.778833, 0), V(-18.917547, 11.788684, 0)),
    Part.LineSegment(V(-18.917547, 11.788684, 0), V(-15.703886, 2.319134, 0)),
    Part.ArcOfCircle(Part.Circle(V(2.993468, 10.725022, 0), V(0, 0, 1), 20.5), math.radians(-155.792442), math.radians(-133.387149)),
    Part.LineSegment(V(-11.088485, -4.172917, 0), V(-2.907558, -11.90576, 0)),
    Part.ArcOfCircle(Part.Circle(V(11.174394, 2.99218, 0), V(0, 0, 1), 20.5), math.radians(-133.387149), math.radians(-110.981856)),
    Part.LineSegment(V(3.833912, -16.148544, 0), V(13.46929, -18.824268, 0)),
    Part.LineSegment(V(13.46929, -18.824268, 0), V(15.126307, -12.857291, 0)),
    Part.LineSegment(V(15.126307, -12.857291, 0), V(5.490929, -10.181567, 0)),
    Part.LineSegment(V(5.490929, -10.181567, 0), V(4.323889, -9.488406, 0)),
], False)
sketch14.addConstraint([
    Sketcher.Constraint("Coincident", 0, 2, 1, 1),
    Sketcher.Constraint("Coincident", 1, 2, 2, 1),
    Sketcher.Constraint("Coincident", 2, 2, 3, 1),
    Sketcher.Constraint("Coincident", 3, 2, 4, 1),
    Sketcher.Constraint("Coincident", 4, 2, 5, 1),
    Sketcher.Constraint("Tangent", 5, 2, 6, 1),
    Sketcher.Constraint("Tangent", 6, 2, 7, 1),
    Sketcher.Constraint("Coincident", 7, 2, 8, 1),
    Sketcher.Constraint("Coincident", 8, 2, 9, 1),
    Sketcher.Constraint("Coincident", 9, 2, 10, 1),
    Sketcher.Constraint("Coincident", 10, 2, 11, 1),
    Sketcher.Constraint("Coincident", 11, 2, 0, 1),
    Sketcher.Constraint("Equal", 5, 7),
    Sketcher.Constraint("Perpendicular", 2, 3),
    Sketcher.Constraint("Perpendicular", 3, 4),
    Sketcher.Constraint("Perpendicular", 8, 9),
    Sketcher.Constraint("Perpendicular", 9, 10),
    Sketcher.Constraint("Equal", 2, 4),
    Sketcher.Constraint("Equal", 4, 8),
    Sketcher.Constraint("Equal", 3, 9),
    Sketcher.Constraint("Equal", 8, 10),
    Sketcher.Constraint("Radius", 5, Q("20.5 mm")),
    Sketcher.Constraint("Distance", 2, Q("10 mm")),
    Sketcher.Constraint("DistanceX", 1, 2, -1, 1, Q("9.839602 mm")),
    Sketcher.Constraint("DistanceY", 1, 2, 3, 2, Q("7.479401 mm")),
    Sketcher.Constraint("DistanceY", 4, 2, 2, 2, Q("11.4597 mm")),
    Sketcher.Constraint("DistanceX", 4, 2, 5, 2, Q("4.615401 mm")),
    Sketcher.Constraint("DistanceY", 5, 2, 1, 2, Q("8.4822 mm")),
    Sketcher.Constraint("DistanceY", 8, 2, 10, 2, Q("8.6427 mm")),
    Sketcher.Constraint("DistanceX", 11, 2, 8, 2, Q("9.145401 mm")),
    Sketcher.Constraint("Distance", 1, Q("1.400238 mm")),
    Sketcher.Constraint("Distance", 11, Q("1.35737 mm")),
    Sketcher.Constraint("DistanceY", -1, 1, 7, 3, Q("2.99218 mm")),
    Sketcher.Constraint("DistanceX", 0, 2, -1, 1, Q("9.05794 mm")),
    Sketcher.Constraint("DistanceY", -1, 1, 0, 2, Q("3.147529 mm")),
    Sketcher.Constraint("DistanceX", -1, 1, 8, 2, Q("13.46929 mm")),
])
sketch14.setExpression("Constraints[21]", "Params.sketch14_radius")
sketch14.setExpression("Constraints[22]", "Params.sketch14_length")
pad10 = body.newObject("PartDesign::Pad", "Pad009")
pad10.Profile = sketch14
pad10.setExpression("Length", "Params.pad10_length")
doc.recompute()

chamfer = body.newObject("PartDesign::Chamfer", "Chamfer")
chamfer.Base = (pad10, edges_at(pad10, [(55.5, 42.98, 38.284), (55.5, 36.44, 44.466)]))
chamfer.setExpression("Size", "Params.chamfer_size")

sketch15 = body.newObject("Sketcher::SketchObject", "Sketch014")
sketch15.Placement = App.Placement(V(0, 3.587682, -3.391178), App.Rotation(V(1, 0, 0), V(0, -0.686924527, -0.726728762), V(0, 0.726728762, -0.686924527), "ZXY"))
sketch15.addGeometry([
    Part.LineSegment(V(0, -53.346073, 0), V(0, -55.846073, 0)),
    Part.LineSegment(V(0, -55.846073, 0), V(111, -55.846073, 0)),
    Part.LineSegment(V(111, -55.846073, 0), V(111, -53.346073, 0)),
    Part.LineSegment(V(111, -53.346073, 0), V(0, -53.346073, 0)),
], False)
sketch15.addConstraint([
    Sketcher.Constraint("Coincident", 0, 2, 1, 1),
    Sketcher.Constraint("Coincident", 1, 2, 2, 1),
    Sketcher.Constraint("Coincident", 2, 2, 3, 1),
    Sketcher.Constraint("Coincident", 3, 2, 0, 1),
    Sketcher.Constraint("Vertical", 0),
    Sketcher.Constraint("Horizontal", 1),
    Sketcher.Constraint("Vertical", 2),
    Sketcher.Constraint("Horizontal", 3),
    Sketcher.Constraint("PointOnObject", 0, 2, -2),
    Sketcher.Constraint("DistanceX", 1, 1, 1, 2, Q("111 mm")),
    Sketcher.Constraint("DistanceY", 0, 2, 0, 1, Q("2.5 mm")),
    Sketcher.Constraint("DistanceY", 0, 2, -1, 1, Q("55.846073 mm")),
])
sketch15.setExpression("Constraints[9]", "Params.sketch15_width")
sketch15.setExpression("Constraints[10]", "Params.sketch15_height")
pocket5 = body.newObject("PartDesign::Pocket", "Pocket004")
pocket5.Profile = sketch15
pocket5.setExpression("Length", "Params.pocket5_length")

sketch16 = body.newObject("Sketcher::SketchObject", "Sketch015")
sketch16.Placement = App.Placement(V(0, -2.952877, 2.791142), App.Rotation(V(-1, 0, 0), V(0, -0.686924527, -0.726728762), V(0, -0.726728762, 0.686924527), "ZXY"))
sketch16.addGeometry([
    Part.LineSegment(V(-111, -53.346073, 0), V(-111, -55.846073, 0)),
    Part.LineSegment(V(-111, -55.846073, 0), V(0, -55.846073, 0)),
    Part.LineSegment(V(0, -55.846073, 0), V(0, -53.346073, 0)),
    Part.LineSegment(V(0, -53.346073, 0), V(-111, -53.346073, 0)),
], False)
sketch16.addConstraint([
    Sketcher.Constraint("Coincident", 0, 2, 1, 1),
    Sketcher.Constraint("Coincident", 1, 2, 2, 1),
    Sketcher.Constraint("Coincident", 2, 2, 3, 1),
    Sketcher.Constraint("Coincident", 3, 2, 0, 1),
    Sketcher.Constraint("Vertical", 0),
    Sketcher.Constraint("Horizontal", 1),
    Sketcher.Constraint("Vertical", 2),
    Sketcher.Constraint("Horizontal", 3),
    Sketcher.Constraint("PointOnObject", 1, 2, -2),
    Sketcher.Constraint("DistanceX", 1, 1, 1, 2, Q("111 mm")),
    Sketcher.Constraint("DistanceY", 0, 2, 0, 1, Q("2.5 mm")),
    Sketcher.Constraint("DistanceY", 0, 2, -1, 1, Q("55.846073 mm")),
])
sketch16.setExpression("Constraints[9]", "Params.sketch16_width")
sketch16.setExpression("Constraints[10]", "Params.sketch16_height")
pocket6 = body.newObject("PartDesign::Pocket", "Pocket005")
pocket6.Profile = sketch16
pocket6.setExpression("Length", "Params.pocket6_length")

sketch17 = body.newObject("Sketcher::SketchObject", "Sketch016")
sketch17.AttachmentSupport = (doc.getObject("YZ_Plane"), [""])
sketch17.MapMode = "FlatFace"
sketch17.addGeometry([
    Part.LineSegment(V(41.586355, 37.537232, 0), V(46.310092, 33.072222, 0)),
    Part.LineSegment(V(46.310092, 33.072222, 0), V(36.006224, 22.171291, 0)),
    Part.LineSegment(V(36.006224, 22.171291, 0), V(20.74492, 36.596706, 0)),
    Part.LineSegment(V(20.74492, 36.596706, 0), V(31.048788, 47.497637, 0)),
    Part.LineSegment(V(31.048788, 47.497637, 0), V(35.772525, 43.032628, 0)),
    Part.LineSegment(V(35.772525, 43.032628, 0), V(37.893005, 43.092334, 0)),
    Part.LineSegment(V(37.893005, 43.092334, 0), V(41.526649, 39.657712, 0)),
    Part.LineSegment(V(41.526649, 39.657712, 0), V(41.586355, 37.537232, 0)),
], False)
sketch17.addConstraint([
    Sketcher.Constraint("Coincident", 0, 2, 1, 1),
    Sketcher.Constraint("Coincident", 1, 2, 2, 1),
    Sketcher.Constraint("Coincident", 2, 2, 3, 1),
    Sketcher.Constraint("Coincident", 3, 2, 4, 1),
    Sketcher.Constraint("Coincident", 4, 2, 5, 1),
    Sketcher.Constraint("Coincident", 5, 2, 6, 1),
    Sketcher.Constraint("Coincident", 6, 2, 7, 1),
    Sketcher.Constraint("Coincident", 7, 2, 0, 1),
    Sketcher.Constraint("Perpendicular", 0, 1),
    Sketcher.Constraint("Perpendicular", 1, 2),
    Sketcher.Constraint("Perpendicular", 2, 3),
    Sketcher.Constraint("Perpendicular", 3, 4),
    Sketcher.Constraint("Parallel", 4, 6),
    Sketcher.Constraint("Perpendicular", 5, 7),
    Sketcher.Constraint("Equal", 1, 3),
    Sketcher.Constraint("Equal", 0, 4),
    Sketcher.Constraint("Equal", 5, 7),
    Sketcher.Constraint("Distance", 1, Q("15 mm")),
    Sketcher.Constraint("Distance", 2, Q("21 mm")),
    Sketcher.Constraint("Distance", 6, Q("5 mm")),
    Sketcher.Constraint("Distance", 0, Q("6.5 mm")),
    Sketcher.Constraint("DistanceX", 4, 2, 1, 2, Q("0.233699 mm")),
    Sketcher.Constraint("DistanceY", -1, 1, 1, 2, Q("22.171291 mm")),
    Sketcher.Constraint("DistanceX", -1, 1, 2, 2, Q("20.74492 mm")),
])
sketch17.setExpression("Constraints[17]", "Params.sketch17_length")
sketch17.setExpression("Constraints[18]", "Params.sketch17_length2")
sketch17.setExpression("Constraints[19]", "Params.sketch17_length3")
sketch17.setExpression("Constraints[20]", "Params.sketch17_length4")
pad11 = body.newObject("PartDesign::Pad", "Pad010")
pad11.Profile = sketch17
pad11.setExpression("Length", "Params.pad11_length")

sketch18 = body.newObject("Sketcher::SketchObject", "Sketch017")
sketch18.AttachmentSupport = (doc.getObject("YZ_Plane"), [""])
sketch18.MapMode = "FlatFace"
sketch18.addGeometry([
    Part.LineSegment(V(32.936326, 45.713483, 0), V(34.93632, 39.269106, 0)),
    Part.LineSegment(V(34.93632, 39.269106, 0), V(30.110642, 37.484655, 0)),
    Part.LineSegment(V(30.110642, 37.484655, 0), V(28.003125, 44.275492, 0)),
    Part.LineSegment(V(28.003125, 44.275492, 0), V(31.048788, 47.497637, 0)),
    Part.LineSegment(V(31.048788, 47.497637, 0), V(32.936326, 45.713483, 0)),
    Part.LineSegment(V(44.422554, 34.856376, 0), V(46.310092, 33.072222, 0)),
    Part.LineSegment(V(46.310092, 33.072222, 0), V(43.264429, 29.850077, 0)),
    Part.LineSegment(V(43.264429, 29.850077, 0), V(36.365763, 31.572138, 0)),
    Part.LineSegment(V(36.365763, 31.572138, 0), V(37.875848, 36.490581, 0)),
    Part.LineSegment(V(37.875848, 36.490581, 0), V(44.422554, 34.856376, 0)),
], False)
sketch18.addConstraint([
    Sketcher.Constraint("Coincident", 0, 2, 1, 1),
    Sketcher.Constraint("Coincident", 1, 2, 2, 1),
    Sketcher.Constraint("Coincident", 2, 2, 3, 1),
    Sketcher.Constraint("Coincident", 3, 2, 4, 1),
    Sketcher.Constraint("Coincident", 4, 2, 0, 1),
    Sketcher.Constraint("Coincident", 5, 2, 6, 1),
    Sketcher.Constraint("Coincident", 6, 2, 7, 1),
    Sketcher.Constraint("Coincident", 7, 2, 8, 1),
    Sketcher.Constraint("Coincident", 8, 2, 9, 1),
    Sketcher.Constraint("Coincident", 9, 2, 5, 1),
    Sketcher.Constraint("Parallel", 0, 2),
    Sketcher.Constraint("Perpendicular", 3, 4),
    Sketcher.Constraint("Parallel", 4, 5),
    Sketcher.Constraint("Perpendicular", 5, 6),
    Sketcher.Constraint("Parallel", 7, 9),
    Sketcher.Constraint("Equal", 4, 5),
    Sketcher.Constraint("Equal", 3, 6),
    Sketcher.Constraint("Equal", 2, 7),
    Sketcher.Constraint("Equal", 1, 8),
    Sketcher.Constraint("Equal", 0, 9),
    Sketcher.Constraint("DistanceX", 2, 2, 4, 2, Q("4.933201 mm")),
    Sketcher.Constraint("DistanceY", 6, 2, 9, 2, Q("5.0063 mm")),
    Sketcher.Constraint("Distance", 0, Q("6.747591 mm")),
    Sketcher.Constraint("Distance", 1, Q("5.14504 mm")),
    Sketcher.Constraint("Distance", 2, Q("7.110351 mm")),
    Sketcher.Constraint("DistanceX", -1, 1, 0, 2, Q("34.93632 mm")),
    Sketcher.Constraint("DistanceX", -1, 1, 1, 2, Q("30.110642 mm")),
    Sketcher.Constraint("DistanceY", -1, 1, 2, 2, Q("44.275492 mm")),
    Sketcher.Constraint("DistanceX", -1, 1, 6, 2, Q("43.264429 mm")),
    Sketcher.Constraint("DistanceY", -1, 1, 8, 2, Q("36.490581 mm")),
])
pocket7 = body.newObject("PartDesign::Pocket", "Pocket006")
pocket7.Profile = sketch18
pocket7.setExpression("Length", "Params.pocket7_length")
pocket7.Reversed = True

doc.recompute()
